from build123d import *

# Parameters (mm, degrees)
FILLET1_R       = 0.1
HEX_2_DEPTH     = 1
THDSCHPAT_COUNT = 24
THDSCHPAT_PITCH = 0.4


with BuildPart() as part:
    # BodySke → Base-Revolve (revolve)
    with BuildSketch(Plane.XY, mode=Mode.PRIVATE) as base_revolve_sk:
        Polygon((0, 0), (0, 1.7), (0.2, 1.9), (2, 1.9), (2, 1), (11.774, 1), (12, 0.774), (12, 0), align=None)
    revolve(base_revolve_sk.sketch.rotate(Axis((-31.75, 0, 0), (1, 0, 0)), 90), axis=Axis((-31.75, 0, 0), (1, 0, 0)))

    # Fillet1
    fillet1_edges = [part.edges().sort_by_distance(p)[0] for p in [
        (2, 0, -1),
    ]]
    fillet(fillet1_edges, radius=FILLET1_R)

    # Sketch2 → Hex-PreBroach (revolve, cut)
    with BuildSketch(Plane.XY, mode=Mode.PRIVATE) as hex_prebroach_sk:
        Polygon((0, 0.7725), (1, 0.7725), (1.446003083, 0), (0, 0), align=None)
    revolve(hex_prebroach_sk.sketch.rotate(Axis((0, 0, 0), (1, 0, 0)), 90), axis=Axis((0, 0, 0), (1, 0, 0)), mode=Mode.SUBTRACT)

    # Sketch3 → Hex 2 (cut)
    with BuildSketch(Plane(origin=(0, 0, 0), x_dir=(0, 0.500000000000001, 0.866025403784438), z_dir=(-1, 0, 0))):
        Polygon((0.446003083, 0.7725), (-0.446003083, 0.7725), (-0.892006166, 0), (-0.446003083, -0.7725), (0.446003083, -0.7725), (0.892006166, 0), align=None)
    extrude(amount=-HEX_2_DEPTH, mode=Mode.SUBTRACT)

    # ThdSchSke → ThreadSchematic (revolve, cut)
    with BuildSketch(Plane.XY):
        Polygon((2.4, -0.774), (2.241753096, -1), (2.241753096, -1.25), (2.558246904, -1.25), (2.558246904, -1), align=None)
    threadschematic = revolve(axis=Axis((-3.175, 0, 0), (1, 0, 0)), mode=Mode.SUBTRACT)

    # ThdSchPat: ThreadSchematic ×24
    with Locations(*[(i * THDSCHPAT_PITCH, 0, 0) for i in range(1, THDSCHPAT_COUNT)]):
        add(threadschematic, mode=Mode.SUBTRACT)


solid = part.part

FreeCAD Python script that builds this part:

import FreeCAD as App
import Part
import Sketcher

V = App.Vector
Q = App.Units.Quantity


def edges_at(feature, points):
    """Names of the edges that pass closest to the given points."""
    edges = feature.Shape.Edges
    near = lambda p: min(range(len(edges)), key=lambda i: edges[i].distToShape(Part.Vertex(*p))[0])
    return sorted({f"Edge{near(p) + 1}" for p in points})

doc = App.newDocument("Part")
body = doc.addObject("PartDesign::Body", "Body")

sketch1 = body.newObject("Sketcher::SketchObject", "Sketch")
sketch1.AttachmentSupport = (doc.getObject("XY_Plane"), [""])
sketch1.MapMode = "FlatFace"
sketch1.addGeometry([
    Part.LineSegment(V(0, 1.7, 0), V(0, 0, 0)),
    Part.LineSegment(V(0, 0, 0), V(12, 0, 0)),
    Part.LineSegment(V(12, 0, 0), V(12, 0.77, 0)),
    Part.LineSegment(V(12, 0.77, 0), V(11.77, 1, 0)),
    Part.LineSegment(V(11.77, 1, 0), V(2, 1, 0)),
    Part.LineSegment(V(2, 1, 0), V(2, 1.9, 0)),
    Part.LineSegment(V(2, 1.9, 0), V(0.2, 1.9, 0)),
    Part.LineSegment(V(0.2, 1.9, 0), V(0, 1.7, 0)),
], False)
sketch1.addConstraint([
    Sketcher.Constraint("Coincident", 0, 2, 1, 1),
    Sketcher.Constraint("Coincident", 1, 2, 2, 1),
    Sketcher.Constraint("Coincident", 2, 2, 3, 1),
    Sketcher.Constraint("Coincident", 3, 2, 4, 1),
    Sketcher.Constraint("Coincident", 4, 2, 5, 1),
    Sketcher.Constraint("Coincident", 5, 2, 6, 1),
    Sketcher.Constraint("Coincident", 6, 2, 7, 1),
    Sketcher.Constraint("Coincident", 7, 2, 0, 1),
    Sketcher.Constraint("Vertical", 0),
    Sketcher.Constraint("Horizontal", 1),
    Sketcher.Constraint("Vertical", 2),
    Sketcher.Constraint("Horizontal", 4),
    Sketcher.Constraint("Vertical", 5),
    Sketcher.Constraint("Horizontal", 6),
    Sketcher.Constraint("Coincident", 0, 2, -1, 1),
    Sketcher.Constraint("Perpendicular", 3, 7),
    Sketcher.Constraint("DistanceX", 1, 1, 1, 2, Q("12 mm")),
    Sketcher.Constraint("Angle", 3, Q("135 deg")),
    Sketcher.Constraint("DistanceX", 6, 2, 6, 1, Q("1.8 mm")),
    Sketcher.Constraint("DistanceY", 0, 2, 0, 1, Q("1.7 mm")),
    Sketcher.Constraint("DistanceY", 5, 1, 5, 2, Q("0.9 mm")),
    Sketcher.Constraint("DistanceY", -1, 1, 3, 2, Q("1 mm")),
    Sketcher.Constraint("DistanceX", 4, 2, 4, 1, Q("9.774 mm")),
])
revolution = body.newObject("PartDesign::Revolution", "Revolution")
revolution.Profile = sketch1
revolution.ReferenceAxis = (sketch1, ["H_Axis"])
revolution.Angle = 360
doc.recompute()

fillet = body.newObject("PartDesign::Fillet", "Fillet")
fillet.Base = (revolution, edges_at(revolution, [(2, 0, -1)]))
fillet.Radius = 0.1

sketch2 = body.newObject("Sketcher::SketchObject", "Sketch001")
sketch2.AttachmentSupport = (doc.getObject("XY_Plane"), [""])
sketch2.MapMode = "FlatFace"
sketch2.addGeometry([
    Part.LineSegment(V(1, 0.8, 0), V(0, 0.8, 0)),
    Part.LineSegment(V(0, 0.8, 0), V(0, 0, 0)),
    Part.LineSegment(V(0, 0, 0), V(1.4, 0, 0)),
    Part.LineSegment(V(1.4, 0, 0), V(1, 0.8, 0)),
], False)
sketch2.addConstraint([
    Sketcher.Constraint("Coincident", 0, 2, 1, 1),
    Sketcher.Constraint("Coincident", 1, 2, 2, 1),
    Sketcher.Constraint("Coincident", 2, 2, 3, 1),
    Sketcher.Constraint("Coincident", 3, 2, 0, 1),
    Sketcher.Constraint("Horizontal", 0),
    Sketcher.Constraint("Vertical", 1),
    Sketcher.Constraint("Horizontal", 2),
    Sketcher.Constraint("Coincident", 1, 2, -1, 1),
    Sketcher.Constraint("DistanceX", 0, 2, 0, 1, Q("1 mm")),
    Sketcher.Constraint("Angle", 3, Q("120 deg")),
    Sketcher.Constraint("DistanceY", 1, 2, 1, 1, Q("0.7725 mm")),
])
groove = body.newObject("PartDesign::Groove", "Groove")
groove.Profile = sketch2
groove.ReferenceAxis = (sketch2, ["H_Axis"])
groove.Angle = 360

sketch3 = body.newObject("Sketcher::SketchObject", "Sketch002")
sketch3.AttachmentSupport = (doc.getObject("YZ_Plane"), [""])
sketch3.MapMode = "FlatFace"
sketch3.addGeometry([
    Part.LineSegment(V(0.9, 0, 0), V(0.4, -0.8, 0)),
    Part.LineSegment(V(0.4, -0.8, 0), V(-0.4, -0.8, 0)),
    Part.LineSegment(V(-0.4, -0.8, 0), V(-0.9, 0, 0)),
    Part.LineSegment(V(-0.9, 0, 0), V(-0.4, 0.8, 0)),
    Part.LineSegment(V(-0.4, 0.8, 0), V(0.4, 0.8, 0)),
    Part.LineSegment(V(0.4, 0.8, 0), V(0.9, 0, 0)),
], False)
sketch3.addConstraint([
    Sketcher.Constraint("Coincident", 0, 2, 1, 1),
    Sketcher.Constraint("Coincident", 1, 2, 2, 1),
    Sketcher.Constraint("Coincident", 2, 2, 3, 1),
    Sketcher.Constraint("Coincident", 3, 2, 4, 1),
    Sketcher.Constraint("Coincident", 4, 2, 5, 1),
    Sketcher.Constraint("Coincident", 5, 2, 0, 1),
    Sketcher.Constraint("Horizontal", 1),
    Sketcher.Constraint("Horizontal", 4),
    Sketcher.Constraint("Symmetric", 0, 2, 3, 2, -1, 1),
    Sketcher.Constraint("Symmetric", 2, 2, 5, 2, -1, 1),
    Sketcher.Constraint("PointOnObject", 2, 2, -1),
    Sketcher.Constraint("Parallel", 2, 5),
    Sketcher.Constraint("Vertical", 1, 2, 3, 2),
    Sketcher.Constraint("Angle", 0, Q("-120 deg")),
    Sketcher.Constraint("DistanceY", 1, 2, 3, 2, Q("1.545 mm")),
    Sketcher.Constraint("DistanceX", 1, 2, 1, 1, Q("0.892006 mm")),
])
pocket1 = body.newObject("PartDesign::Pocket", "Pocket")
pocket1.Profile = sketch3
pocket1.Length = 1
pocket1.Reversed = True

sketch4 = body.newObject("Sketcher::SketchObject", "Sketch003")
sketch4.AttachmentSupport = (doc.getObject("XY_Plane"), [""])
sketch4.MapMode = "FlatFace"
sketch4.addGeometry([
    Part.LineSegment(V(2.4, -0.77, 0), V(2.24, -1, 0)),
    Part.LineSegment(V(2.24, -1, 0), V(2.24, -1.25, 0)),
    Part.LineSegment(V(2.24, -1.25, 0), V(2.56, -1.25, 0)),
    Part.LineSegment(V(2.56, -1.25, 0), V(2.56, -1, 0)),
    Part.LineSegment(V(2.56, -1, 0), V(2.4, -0.77, 0)),
], False)
sketch4.addConstraint([
    Sketcher.Constraint("Coincident", 0, 2, 1, 1),
    Sketcher.Constraint("Coincident", 1, 2, 2, 1),
    Sketcher.Constraint("Coincident", 2, 2, 3, 1),
    Sketcher.Constraint("Coincident", 3, 2, 4, 1),
    Sketcher.Constraint("Coincident", 4, 2, 0, 1),
    Sketcher.Constraint("Vertical", 1),
    Sketcher.Constraint("Horizontal", 2),
    Sketcher.Constraint("Vertical", 3),
    Sketcher.Constraint("Horizontal", 0, 2, 3, 2),
    Sketcher.Constraint("Equal", 0, 4),
    Sketcher.Constraint("Angle", 0, Q("-125 deg")),
    Sketcher.Constraint("DistanceY", 0, 2, -1, 1, Q("1 mm")),
    Sketcher.Constraint("DistanceY", 1, 2, 1, 1, Q("0.25 mm")),
    Sketcher.Constraint("DistanceX", -1, 1, 4, 2, Q("2.4 mm")),
    Sketcher.Constraint("DistanceY", 4, 2, -1, 1, Q("0.774 mm")),
])
groove2 = body.newObject("PartDesign::Groove", "Groove001")
groove2.Profile = sketch4
groove2.ReferenceAxis = (sketch4, ["H_Axis"])
groove2.Angle = 360
doc.recompute()

linearpattern = body.newObject("PartDesign::LinearPattern", "LinearPattern")
linearpattern.Originals = [groove2]
linearpattern.Direction = (doc.getObject("X_Axis"), [""])
linearpattern.Mode = "offset"
linearpattern.Offset = 0.4
linearpattern.Occurrences = 24
body.Tip = linearpattern

doc.recompute()
